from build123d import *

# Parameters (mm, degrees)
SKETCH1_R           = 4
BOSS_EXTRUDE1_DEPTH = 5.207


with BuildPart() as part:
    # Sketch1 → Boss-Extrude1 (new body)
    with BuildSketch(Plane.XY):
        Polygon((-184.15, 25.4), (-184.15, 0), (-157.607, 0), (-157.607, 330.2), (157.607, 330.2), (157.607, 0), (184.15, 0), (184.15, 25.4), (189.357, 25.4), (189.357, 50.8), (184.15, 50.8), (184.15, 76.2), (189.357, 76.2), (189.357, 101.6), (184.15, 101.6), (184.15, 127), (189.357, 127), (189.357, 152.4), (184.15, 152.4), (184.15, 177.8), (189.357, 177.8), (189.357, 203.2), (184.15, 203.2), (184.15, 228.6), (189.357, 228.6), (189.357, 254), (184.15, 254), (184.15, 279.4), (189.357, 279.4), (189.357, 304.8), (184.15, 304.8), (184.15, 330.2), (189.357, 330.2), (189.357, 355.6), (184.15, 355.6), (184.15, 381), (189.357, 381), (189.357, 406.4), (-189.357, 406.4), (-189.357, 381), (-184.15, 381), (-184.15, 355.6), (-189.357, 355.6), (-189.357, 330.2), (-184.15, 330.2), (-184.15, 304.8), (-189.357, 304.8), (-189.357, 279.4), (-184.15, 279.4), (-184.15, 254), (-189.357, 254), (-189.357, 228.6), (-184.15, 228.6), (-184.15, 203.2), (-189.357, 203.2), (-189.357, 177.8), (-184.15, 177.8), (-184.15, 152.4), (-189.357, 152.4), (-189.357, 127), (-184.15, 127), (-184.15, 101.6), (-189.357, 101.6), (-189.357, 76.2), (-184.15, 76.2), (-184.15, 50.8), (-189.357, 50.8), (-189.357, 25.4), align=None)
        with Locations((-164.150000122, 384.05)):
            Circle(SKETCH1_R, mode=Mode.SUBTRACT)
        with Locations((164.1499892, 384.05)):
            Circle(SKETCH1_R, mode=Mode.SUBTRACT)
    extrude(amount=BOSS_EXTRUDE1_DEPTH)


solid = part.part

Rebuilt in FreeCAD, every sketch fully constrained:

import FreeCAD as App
import Part
import Sketcher

V = App.Vector
Q = App.Units.Quantity


def add_polygon(sketch, points):
    """Adds a closed chain of lines whose ends are joined by coincident constraints."""
    first, n = sketch.GeometryCount, len(points)
    for a, b in zip(points, points[1:] + points[:1]):
        sketch.addGeometry(Part.LineSegment(App.Vector(*a, 0), App.Vector(*b, 0)), False)
    for i in range(n):
        sketch.addConstraint(Sketcher.Constraint("Coincident", first + i, 2, first + (i + 1) % n, 1))

doc = App.newDocument("Part")
params = doc.addObject("Spreadsheet::Sheet", "Params")
for row, (alias, value) in enumerate([
    ("sketch1_height", "1 in"),
    ("sketch1_width", "12.41 in"),
    ("sketch1_width2", "14.91 in"),
    ("sketch1_width3", "1.045 in"),
    ("pad1_length", "0.205 in"),
], start=1):
    params.set(f"A{row}", alias)
    params.set(f"B{row}", "=" + value)
    params.setAlias(f"B{row}", alias)

body = doc.addObject("PartDesign::Body", "Body")

# Sketch on XY plane
sketch1 = body.newObject("Sketcher::SketchObject", "Sketch")
sketch1.AttachmentSupport = (doc.getObject("XY_Plane"), [""])
sketch1.MapMode = "FlatFace"
add_polygon(sketch1, [(-184.2, 25.4), (-184.2, 0), (-157.6, 0), (-157.6, 330.2), (157.6, 330.2), (157.6, 0), (184.2, 0), (184.2, 25.4), (189.4, 25.4), (189.4, 50.8), (184.2, 50.8), (184.2, 76.2), (189.4, 76.2), (189.4, 101.6), (184.2, 101.6), (184.2, 127), (189.4, 127), (189.4, 152.4), (184.2, 152.4), (184.2, 177.8), (189.4, 177.8), (189.4, 203.2), (184.2, 203.2), (184.2, 228.6), (189.4, 228.6), (189.4, 254), (184.2, 254), (184.2, 279.4), (189.4, 279.4), (189.4, 304.8), (184.2, 304.8), (184.2, 330.2), (189.4, 330.2), (189.4, 355.6), (184.2, 355.6), (184.2, 381), (189.4, 381), (189.4, 406.4), (-189.4, 406.4), (-189.4, 381), (-184.2, 381), (-184.2, 355.6), (-189.4, 355.6), (-189.4, 330.2), (-184.2, 330.2), (-184.2, 304.8), (-189.4, 304.8), (-189.4, 279.4), (-184.2, 279.4), (-184.2, 254), (-189.4, 254), (-189.4, 228.6), (-184.2, 228.6), (-184.2, 203.2), (-189.4, 203.2), (-189.4, 177.8), (-184.2, 177.8), (-184.2, 152.4), (-189.4, 152.4), (-189.4, 127), (-184.2, 127), (-184.2, 101.6), (-189.4, 101.6), (-189.4, 76.2), (-184.2, 76.2), (-184.2, 50.8), (-189.4, 50.8), (-189.4, 25.4)])  # lines 0-67
sketch1.addGeometry(Part.Circle(V(-164.2, 384.1, 0), V(0, 0, 1), 4), False)  # 68
sketch1.addGeometry(Part.Circle(V(164.1, 384.1, 0), V(0, 0, 1), 4), False)  # 69
sketch1.addConstraint([
    Sketcher.Constraint("Vertical", 0),
    Sketcher.Constraint("Horizontal", 1),
    Sketcher.Constraint("Vertical", 2),
    Sketcher.Constraint("Horizontal", 3),
    Sketcher.Constraint("Vertical", 4),
    Sketcher.Constraint("Horizontal", 5),
    Sketcher.Constraint("Vertical", 6),
    Sketcher.Constraint("Horizontal", 7),
    Sketcher.Constraint("Vertical", 8),
    Sketcher.Constraint("Horizontal", 9),
    Sketcher.Constraint("Vertical", 10),
    Sketcher.Constraint("Horizontal", 11),
    Sketcher.Constraint("Vertical", 12),
    Sketcher.Constraint("Horizontal", 13),
    Sketcher.Constraint("Vertical", 14),
    Sketcher.Constraint("Horizontal", 15),
    Sketcher.Constraint("Vertical", 16),
    Sketcher.Constraint("Horizontal", 17),
    Sketcher.Constraint("Vertical", 18),
    Sketcher.Constraint("Horizontal", 19),
    Sketcher.Constraint("Vertical", 20),
    Sketcher.Constraint("Horizontal", 21),
    Sketcher.Constraint("Vertical", 22),
    Sketcher.Constraint("Horizontal", 23),
    Sketcher.Constraint("Vertical", 24),
    Sketcher.Constraint("Horizontal", 25),
    Sketcher.Constraint("Vertical", 26),
    Sketcher.Constraint("Horizontal", 27),
    Sketcher.Constraint("Vertical", 28),
    Sketcher.Constraint("Horizontal", 29),
    Sketcher.Constraint("Vertical", 30),
    Sketcher.Constraint("Horizontal", 31),
    Sketcher.Constraint("Vertical", 32),
    Sketcher.Constraint("Horizontal", 33),
    Sketcher.Constraint("Vertical", 34),
    Sketcher.Constraint("Horizontal", 35),
    Sketcher.Constraint("Vertical", 36),
    Sketcher.Constraint("Horizontal", 37),
    Sketcher.Constraint("Vertical", 38),
    Sketcher.Constraint("Horizontal", 39),
    Sketcher.Constraint("Vertical", 40),
    Sketcher.Constraint("Horizontal", 41),
    Sketcher.Constraint("Vertical", 42),
    Sketcher.Constraint("Horizontal", 43),
    Sketcher.Constraint("Vertical", 44),
    Sketcher.Constraint("Horizontal", 45),
    Sketcher.Constraint("Vertical", 46),
    Sketcher.Constraint("Horizontal", 47),
    Sketcher.Constraint("Vertical", 48),
    Sketcher.Constraint("Horizontal", 49),
    Sketcher.Constraint("Vertical", 50),
    Sketcher.Constraint("Horizontal", 51),
    Sketcher.Constraint("Vertical", 52),
    Sketcher.Constraint("Horizontal", 53),
    Sketcher.Constraint("Vertical", 54),
    Sketcher.Constraint("Horizontal", 55),
    Sketcher.Constraint("Vertical", 56),
    Sketcher.Constraint("Horizontal", 57),
    Sketcher.Constraint("Vertical", 58),
    Sketcher.Constraint("Horizontal", 59),
    Sketcher.Constraint("Vertical", 60),
    Sketcher.Constraint("Horizontal", 61),
    Sketcher.Constraint("Vertical", 62),
    Sketcher.Constraint("Horizontal", 63),
    Sketcher.Constraint("Vertical", 64),
    Sketcher.Constraint("Horizontal", 65),
    Sketcher.Constraint("Vertical", 66),
    Sketcher.Constraint("Horizontal", 67),
    Sketcher.Constraint("Equal", 68, 69),
    Sketcher.Constraint("Symmetric", 1, 2, 4, 2, -1, 1),
    Sketcher.Constraint("Symmetric", 0, 2, 5, 2, -2),
    Sketcher.Constraint("Symmetric", 35, 2, 38, 2, -2),
    Sketcher.Constraint("Symmetric", 33, 2, 40, 2, -2),
    Sketcher.Constraint("Symmetric", 31, 2, 42, 2, -2),
    Sketcher.Constraint("Symmetric", 29, 2, 44, 2, -2),
    Sketcher.Constraint("Symmetric", 27, 2, 46, 2, -2),
    Sketcher.Constraint("Symmetric", 25, 2, 48, 2, -2),
    Sketcher.Constraint("Symmetric", 23, 2, 50, 2, -2),
    Sketcher.Constraint("Symmetric", 21, 2, 52, 2, -2),
    Sketcher.Constraint("Symmetric", 19, 2, 54, 2, -2),
    Sketcher.Constraint("Symmetric", 17, 2, 56, 2, -2),
    Sketcher.Constraint("Symmetric", 15, 2, 58, 2, -2),
    Sketcher.Constraint("Symmetric", 13, 2, 60, 2, -2),
    Sketcher.Constraint("Symmetric", 11, 2, 62, 2, -2),
    Sketcher.Constraint("Symmetric", 9, 2, 64, 2, -2),
    Sketcher.Constraint("Symmetric", 7, 2, 66, 2, -2),
    Sketcher.Constraint("Horizontal", 68, 3, 69, 3),
    Sketcher.Constraint("Horizontal", 3, 2, 30, 2),
    Sketcher.Constraint("Vertical", 6, 2, 9, 2),
    Sketcher.Constraint("Vertical", 8, 2, 11, 2),
    Sketcher.Constraint("Vertical", 10, 2, 13, 2),
    Sketcher.Constraint("Vertical", 12, 2, 15, 2),
    Sketcher.Constraint("Vertical", 14, 2, 17, 2),
    Sketcher.Constraint("Vertical", 16, 2, 19, 2),
    Sketcher.Constraint("Vertical", 18, 2, 21, 2),
    Sketcher.Constraint("Vertical", 20, 2, 23, 2),
    Sketcher.Constraint("Vertical", 22, 2, 25, 2),
    Sketcher.Constraint("Vertical", 24, 2, 27, 2),
    Sketcher.Constraint("Vertical", 26, 2, 29, 2),
    Sketcher.Constraint("Vertical", 28, 2, 31, 2),
    Sketcher.Constraint("Vertical", 30, 2, 33, 2),
    Sketcher.Constraint("Vertical", 32, 2, 35, 2),
    Sketcher.Constraint("Equal", 6, 8),
    Sketcher.Constraint("Equal", 8, 10),
    Sketcher.Constraint("Equal", 10, 12),
    Sketcher.Constraint("Equal", 12, 14),
    Sketcher.Constraint("Equal", 14, 16),
    Sketcher.Constraint("Equal", 16, 18),
    Sketcher.Constraint("Equal", 18, 20),
    Sketcher.Constraint("Equal", 20, 22),
    Sketcher.Constraint("Equal", 22, 24),
    Sketcher.Constraint("Equal", 24, 26),
    Sketcher.Constraint("Equal", 26, 28),
    Sketcher.Constraint("Equal", 28, 30),
    Sketcher.Constraint("Equal", 30, 32),
    Sketcher.Constraint("Equal", 32, 34),
    Sketcher.Constraint("Equal", 34, 36),
    Sketcher.Constraint("DistanceY", 0, 2, 0, 1, Q("1 in")),
    Sketcher.Constraint("DistanceX", 3, 1, 3, 2, Q("12.41 in")),
    Sketcher.Constraint("DistanceX", 37, 2, 37, 1, Q("14.91 in")),
    Sketcher.Constraint("Diameter", 68, 8.0),
    Sketcher.Constraint("DistanceX", 1, 1, 1, 2, Q("1.045 in")),
    Sketcher.Constraint("DistanceX", 68, 3, -1, 1, 164.15),
    Sketcher.Constraint("DistanceY", -1, 1, 68, 3, 384.05),
    Sketcher.Constraint("DistanceX", -1, 1, 69, 3, 164.149989),
])
sketch1.setExpression("Constraints[185]", "Params.sketch1_height")
sketch1.setExpression("Constraints[186]", "Params.sketch1_width")
sketch1.setExpression("Constraints[187]", "Params.sketch1_width2")
sketch1.setExpression("Constraints[189]", "Params.sketch1_width3")
pad1 = body.newObject("PartDesign::Pad", "Pad")
pad1.Profile = sketch1
pad1.setExpression("Length", "Params.pad1_length")

doc.recompute()
